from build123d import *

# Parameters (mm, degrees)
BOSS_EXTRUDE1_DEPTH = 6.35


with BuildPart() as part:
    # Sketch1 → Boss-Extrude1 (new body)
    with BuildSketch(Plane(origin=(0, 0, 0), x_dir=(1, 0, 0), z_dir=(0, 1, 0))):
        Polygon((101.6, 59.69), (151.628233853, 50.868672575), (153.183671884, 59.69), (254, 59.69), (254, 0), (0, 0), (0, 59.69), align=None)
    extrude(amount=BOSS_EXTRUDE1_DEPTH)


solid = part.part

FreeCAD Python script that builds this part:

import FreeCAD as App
import Part
import Sketcher

V = App.Vector
Q = App.Units.Quantity

doc = App.newDocument("Part")
body = doc.addObject("PartDesign::Body", "Body")

# Sketch on XZ plane
sketch1 = doc.addObject("Sketcher::SketchObject", "Sketch")
body.addObject(sketch1)
sketch1.AttachmentSupport = (doc.XZ_Plane, [""])
sketch1.MapMode = "FlatFace"
sketch1.addGeometry([
    Part.LineSegment(V(151.628234, -50.868673, 0), V(101.6, -59.69, 0)),  # 0
    Part.LineSegment(V(101.6, -59.69, 0), V(0, -59.69, 0)),  # 1
    Part.LineSegment(V(0, -59.69, 0), V(0, 0, 0)),  # 2
    Part.LineSegment(V(0, 0, 0), V(254, 0, 0)),  # 3
    Part.LineSegment(V(254, 0, 0), V(254, -59.69, 0)),  # 4
    Part.LineSegment(V(254, -59.69, 0), V(153.183672, -59.69, 0)),  # 5
    Part.LineSegment(V(153.183672, -59.69, 0), V(151.628234, -50.868673, 0)),  # 6
], False)
sketch1.addConstraint([
    Sketcher.Constraint("Coincident", 0, 2, 1, 1),
    Sketcher.Constraint("Coincident", 1, 2, 2, 1),
    Sketcher.Constraint("Coincident", 2, 2, 3, 1),
    Sketcher.Constraint("Coincident", 3, 2, 4, 1),
    Sketcher.Constraint("Coincident", 4, 2, 5, 1),
    Sketcher.Constraint("Coincident", 5, 2, 6, 1),
    Sketcher.Constraint("Coincident", 6, 2, 0, 1),
    Sketcher.Constraint("Horizontal", 1),
    Sketcher.Constraint("Vertical", 2),
    Sketcher.Constraint("Horizontal", 3),
    Sketcher.Constraint("Vertical", 4),
    Sketcher.Constraint("Horizontal", 5),
    Sketcher.Constraint("Coincident", 2, 2, -1, 1),
    Sketcher.Constraint("Perpendicular", 0, 6),
    Sketcher.Constraint("Horizontal", 1, 2, 4, 2),
    Sketcher.Constraint("DistanceX", 1, 2, 1, 1, Q("4 in")),
    Sketcher.Constraint("DistanceX", 3, 1, 3, 2, Q("10 in")),
    Sketcher.Constraint("Distance", 0, Q("2 in")),
    Sketcher.Constraint("Angle", 0, Q("-170 deg")),
    Sketcher.Constraint("DistanceY", 2, 1, 2, 2, Q("2.35 in")),
])
pad1 = doc.addObject("PartDesign::Pad", "Pad")
body.addObject(pad1)
pad1.Profile = sketch1
pad1.Length = Q("0.25 in")
pad1.Reversed = True

doc.recompute()
